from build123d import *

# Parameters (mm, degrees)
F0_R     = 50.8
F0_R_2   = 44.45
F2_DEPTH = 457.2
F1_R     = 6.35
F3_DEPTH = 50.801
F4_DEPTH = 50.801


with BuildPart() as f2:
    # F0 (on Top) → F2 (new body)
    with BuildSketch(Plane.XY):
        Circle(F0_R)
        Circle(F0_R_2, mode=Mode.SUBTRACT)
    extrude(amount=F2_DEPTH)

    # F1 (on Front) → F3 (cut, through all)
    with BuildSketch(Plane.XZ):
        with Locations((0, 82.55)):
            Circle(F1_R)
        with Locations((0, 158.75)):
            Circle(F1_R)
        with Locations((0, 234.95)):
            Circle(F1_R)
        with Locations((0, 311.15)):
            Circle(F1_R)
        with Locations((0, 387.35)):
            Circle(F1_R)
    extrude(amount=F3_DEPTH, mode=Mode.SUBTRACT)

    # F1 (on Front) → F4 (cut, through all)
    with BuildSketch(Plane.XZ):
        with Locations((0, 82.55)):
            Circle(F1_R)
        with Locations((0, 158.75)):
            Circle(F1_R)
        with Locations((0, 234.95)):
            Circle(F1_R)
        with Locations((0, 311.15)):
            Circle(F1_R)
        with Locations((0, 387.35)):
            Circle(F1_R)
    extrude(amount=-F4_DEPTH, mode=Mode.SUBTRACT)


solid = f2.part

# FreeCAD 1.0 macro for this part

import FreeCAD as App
import Part
import Sketcher
from FreeCAD import Vector
Q = App.Units.Quantity

doc = App.newDocument("Part")
body = doc.addObject("PartDesign::Body", "Body")

# Sketch on XY plane
sketch1 = body.newObject("Sketcher::SketchObject", "Sketch")
sketch1.AttachmentSupport = (doc.getObject("XY_Plane"), [""])
sketch1.MapMode = "FlatFace"
sketch1.addGeometry([
    Part.Circle(Vector(0, 0, 0), Vector(0, 0, 1), 50.8),
    Part.Circle(Vector(0, 0, 0), Vector(0, 0, 1), 44.45),
], False)
sketch1.addConstraint([
    Sketcher.Constraint("Coincident", 0, 3, -1, 1),
    Sketcher.Constraint("Coincident", 1, 3, -1, 1),
    Sketcher.Constraint("Diameter", 0, Q("4 in")),
    Sketcher.Constraint("Diameter", 1, Q("3.5 in")),
])
pad1 = body.newObject("PartDesign::Pad", "Pad")
pad1.Profile = sketch1
pad1.Length = Q("18 in")

# Sketch on XZ plane
sketch2 = body.newObject("Sketcher::SketchObject", "Sketch001")
sketch2.AttachmentSupport = (doc.getObject("XZ_Plane"), [""])
sketch2.MapMode = "FlatFace"
sketch2.addGeometry([
    Part.Circle(Vector(0, 82.55, 0), Vector(0, 0, 1), 6.35),  # 0
    Part.Circle(Vector(0, 158.75, 0), Vector(0, 0, 1), 6.35),  # 1
    Part.Circle(Vector(0, 234.95, 0), Vector(0, 0, 1), 6.35),  # 2
    Part.Circle(Vector(0, 311.15, 0), Vector(0, 0, 1), 6.35),  # 3
    Part.Circle(Vector(0, 387.35, 0), Vector(0, 0, 1), 6.35),  # 4
], False)
sketch2.addConstraint([
    Sketcher.Constraint("Equal", 0, 1),
    Sketcher.Constraint("Equal", 1, 2),
    Sketcher.Constraint("Equal", 2, 3),
    Sketcher.Constraint("Equal", 3, 4),
    Sketcher.Constraint("PointOnObject", 0, 3, -2),
    Sketcher.Constraint("PointOnObject", 1, 3, -2),
    Sketcher.Constraint("PointOnObject", 2, 3, -2),
    Sketcher.Constraint("PointOnObject", 3, 3, -2),
    Sketcher.Constraint("PointOnObject", 4, 3, -2),
    Sketcher.Constraint("Diameter", 0, Q("0.5 in")),
    Sketcher.Constraint("DistanceY", 0, 3, 1, 3, Q("3 in")),
    Sketcher.Constraint("DistanceY", 1, 3, 2, 3, Q("3 in")),
    Sketcher.Constraint("DistanceY", 2, 3, 3, 3, Q("3 in")),
    Sketcher.Constraint("DistanceY", 3, 3, 4, 3, Q("3 in")),
    Sketcher.Constraint("DistanceY", -1, 1, 0, 3, Q("3.25 in")),
])
pocket1 = body.newObject("PartDesign::Pocket", "Pocket")
pocket1.Profile = sketch2
pocket1.Type = "ThroughAll"
pocket1.Reversed = True

# Sketch on XZ plane
sketch3 = body.newObject("Sketcher::SketchObject", "Sketch002")
sketch3.AttachmentSupport = (doc.getObject("XZ_Plane"), [""])
sketch3.MapMode = "FlatFace"
sketch3.addGeometry([
    Part.Circle(Vector(0, 82.55, 0), Vector(0, 0, 1), 6.35),  # 0
    Part.Circle(Vector(0, 158.75, 0), Vector(0, 0, 1), 6.35),  # 1
    Part.Circle(Vector(0, 234.95, 0), Vector(0, 0, 1), 6.35),  # 2
    Part.Circle(Vector(0, 311.15, 0), Vector(0, 0, 1), 6.35),  # 3
    Part.Circle(Vector(0, 387.35, 0), Vector(0, 0, 1), 6.35),  # 4
], False)
sketch3.addConstraint([
    Sketcher.Constraint("Equal", 0, 1),
    Sketcher.Constraint("Equal", 1, 2),
    Sketcher.Constraint("Equal", 2, 3),
    Sketcher.Constraint("Equal", 3, 4),
    Sketcher.Constraint("PointOnObject", 0, 3, -2),
    Sketcher.Constraint("PointOnObject", 1, 3, -2),
    Sketcher.Constraint("PointOnObject", 2, 3, -2),
    Sketcher.Constraint("PointOnObject", 3, 3, -2),
    Sketcher.Constraint("PointOnObject", 4, 3, -2),
    Sketcher.Constraint("Diameter", 0, Q("0.5 in")),
    Sketcher.Constraint("DistanceY", 0, 3, 1, 3, Q("3 in")),
    Sketcher.Constraint("DistanceY", 1, 3, 2, 3, Q("3 in")),
    Sketcher.Constraint("DistanceY", 2, 3, 3, 3, Q("3 in")),
    Sketcher.Constraint("DistanceY", 3, 3, 4, 3, Q("3 in")),
    Sketcher.Constraint("DistanceY", -1, 1, 0, 3, Q("3.25 in")),
])
pocket2 = body.newObject("PartDesign::Pocket", "Pocket001")
pocket2.Profile = sketch3
pocket2.Type = "ThroughAll"

doc.recompute()
